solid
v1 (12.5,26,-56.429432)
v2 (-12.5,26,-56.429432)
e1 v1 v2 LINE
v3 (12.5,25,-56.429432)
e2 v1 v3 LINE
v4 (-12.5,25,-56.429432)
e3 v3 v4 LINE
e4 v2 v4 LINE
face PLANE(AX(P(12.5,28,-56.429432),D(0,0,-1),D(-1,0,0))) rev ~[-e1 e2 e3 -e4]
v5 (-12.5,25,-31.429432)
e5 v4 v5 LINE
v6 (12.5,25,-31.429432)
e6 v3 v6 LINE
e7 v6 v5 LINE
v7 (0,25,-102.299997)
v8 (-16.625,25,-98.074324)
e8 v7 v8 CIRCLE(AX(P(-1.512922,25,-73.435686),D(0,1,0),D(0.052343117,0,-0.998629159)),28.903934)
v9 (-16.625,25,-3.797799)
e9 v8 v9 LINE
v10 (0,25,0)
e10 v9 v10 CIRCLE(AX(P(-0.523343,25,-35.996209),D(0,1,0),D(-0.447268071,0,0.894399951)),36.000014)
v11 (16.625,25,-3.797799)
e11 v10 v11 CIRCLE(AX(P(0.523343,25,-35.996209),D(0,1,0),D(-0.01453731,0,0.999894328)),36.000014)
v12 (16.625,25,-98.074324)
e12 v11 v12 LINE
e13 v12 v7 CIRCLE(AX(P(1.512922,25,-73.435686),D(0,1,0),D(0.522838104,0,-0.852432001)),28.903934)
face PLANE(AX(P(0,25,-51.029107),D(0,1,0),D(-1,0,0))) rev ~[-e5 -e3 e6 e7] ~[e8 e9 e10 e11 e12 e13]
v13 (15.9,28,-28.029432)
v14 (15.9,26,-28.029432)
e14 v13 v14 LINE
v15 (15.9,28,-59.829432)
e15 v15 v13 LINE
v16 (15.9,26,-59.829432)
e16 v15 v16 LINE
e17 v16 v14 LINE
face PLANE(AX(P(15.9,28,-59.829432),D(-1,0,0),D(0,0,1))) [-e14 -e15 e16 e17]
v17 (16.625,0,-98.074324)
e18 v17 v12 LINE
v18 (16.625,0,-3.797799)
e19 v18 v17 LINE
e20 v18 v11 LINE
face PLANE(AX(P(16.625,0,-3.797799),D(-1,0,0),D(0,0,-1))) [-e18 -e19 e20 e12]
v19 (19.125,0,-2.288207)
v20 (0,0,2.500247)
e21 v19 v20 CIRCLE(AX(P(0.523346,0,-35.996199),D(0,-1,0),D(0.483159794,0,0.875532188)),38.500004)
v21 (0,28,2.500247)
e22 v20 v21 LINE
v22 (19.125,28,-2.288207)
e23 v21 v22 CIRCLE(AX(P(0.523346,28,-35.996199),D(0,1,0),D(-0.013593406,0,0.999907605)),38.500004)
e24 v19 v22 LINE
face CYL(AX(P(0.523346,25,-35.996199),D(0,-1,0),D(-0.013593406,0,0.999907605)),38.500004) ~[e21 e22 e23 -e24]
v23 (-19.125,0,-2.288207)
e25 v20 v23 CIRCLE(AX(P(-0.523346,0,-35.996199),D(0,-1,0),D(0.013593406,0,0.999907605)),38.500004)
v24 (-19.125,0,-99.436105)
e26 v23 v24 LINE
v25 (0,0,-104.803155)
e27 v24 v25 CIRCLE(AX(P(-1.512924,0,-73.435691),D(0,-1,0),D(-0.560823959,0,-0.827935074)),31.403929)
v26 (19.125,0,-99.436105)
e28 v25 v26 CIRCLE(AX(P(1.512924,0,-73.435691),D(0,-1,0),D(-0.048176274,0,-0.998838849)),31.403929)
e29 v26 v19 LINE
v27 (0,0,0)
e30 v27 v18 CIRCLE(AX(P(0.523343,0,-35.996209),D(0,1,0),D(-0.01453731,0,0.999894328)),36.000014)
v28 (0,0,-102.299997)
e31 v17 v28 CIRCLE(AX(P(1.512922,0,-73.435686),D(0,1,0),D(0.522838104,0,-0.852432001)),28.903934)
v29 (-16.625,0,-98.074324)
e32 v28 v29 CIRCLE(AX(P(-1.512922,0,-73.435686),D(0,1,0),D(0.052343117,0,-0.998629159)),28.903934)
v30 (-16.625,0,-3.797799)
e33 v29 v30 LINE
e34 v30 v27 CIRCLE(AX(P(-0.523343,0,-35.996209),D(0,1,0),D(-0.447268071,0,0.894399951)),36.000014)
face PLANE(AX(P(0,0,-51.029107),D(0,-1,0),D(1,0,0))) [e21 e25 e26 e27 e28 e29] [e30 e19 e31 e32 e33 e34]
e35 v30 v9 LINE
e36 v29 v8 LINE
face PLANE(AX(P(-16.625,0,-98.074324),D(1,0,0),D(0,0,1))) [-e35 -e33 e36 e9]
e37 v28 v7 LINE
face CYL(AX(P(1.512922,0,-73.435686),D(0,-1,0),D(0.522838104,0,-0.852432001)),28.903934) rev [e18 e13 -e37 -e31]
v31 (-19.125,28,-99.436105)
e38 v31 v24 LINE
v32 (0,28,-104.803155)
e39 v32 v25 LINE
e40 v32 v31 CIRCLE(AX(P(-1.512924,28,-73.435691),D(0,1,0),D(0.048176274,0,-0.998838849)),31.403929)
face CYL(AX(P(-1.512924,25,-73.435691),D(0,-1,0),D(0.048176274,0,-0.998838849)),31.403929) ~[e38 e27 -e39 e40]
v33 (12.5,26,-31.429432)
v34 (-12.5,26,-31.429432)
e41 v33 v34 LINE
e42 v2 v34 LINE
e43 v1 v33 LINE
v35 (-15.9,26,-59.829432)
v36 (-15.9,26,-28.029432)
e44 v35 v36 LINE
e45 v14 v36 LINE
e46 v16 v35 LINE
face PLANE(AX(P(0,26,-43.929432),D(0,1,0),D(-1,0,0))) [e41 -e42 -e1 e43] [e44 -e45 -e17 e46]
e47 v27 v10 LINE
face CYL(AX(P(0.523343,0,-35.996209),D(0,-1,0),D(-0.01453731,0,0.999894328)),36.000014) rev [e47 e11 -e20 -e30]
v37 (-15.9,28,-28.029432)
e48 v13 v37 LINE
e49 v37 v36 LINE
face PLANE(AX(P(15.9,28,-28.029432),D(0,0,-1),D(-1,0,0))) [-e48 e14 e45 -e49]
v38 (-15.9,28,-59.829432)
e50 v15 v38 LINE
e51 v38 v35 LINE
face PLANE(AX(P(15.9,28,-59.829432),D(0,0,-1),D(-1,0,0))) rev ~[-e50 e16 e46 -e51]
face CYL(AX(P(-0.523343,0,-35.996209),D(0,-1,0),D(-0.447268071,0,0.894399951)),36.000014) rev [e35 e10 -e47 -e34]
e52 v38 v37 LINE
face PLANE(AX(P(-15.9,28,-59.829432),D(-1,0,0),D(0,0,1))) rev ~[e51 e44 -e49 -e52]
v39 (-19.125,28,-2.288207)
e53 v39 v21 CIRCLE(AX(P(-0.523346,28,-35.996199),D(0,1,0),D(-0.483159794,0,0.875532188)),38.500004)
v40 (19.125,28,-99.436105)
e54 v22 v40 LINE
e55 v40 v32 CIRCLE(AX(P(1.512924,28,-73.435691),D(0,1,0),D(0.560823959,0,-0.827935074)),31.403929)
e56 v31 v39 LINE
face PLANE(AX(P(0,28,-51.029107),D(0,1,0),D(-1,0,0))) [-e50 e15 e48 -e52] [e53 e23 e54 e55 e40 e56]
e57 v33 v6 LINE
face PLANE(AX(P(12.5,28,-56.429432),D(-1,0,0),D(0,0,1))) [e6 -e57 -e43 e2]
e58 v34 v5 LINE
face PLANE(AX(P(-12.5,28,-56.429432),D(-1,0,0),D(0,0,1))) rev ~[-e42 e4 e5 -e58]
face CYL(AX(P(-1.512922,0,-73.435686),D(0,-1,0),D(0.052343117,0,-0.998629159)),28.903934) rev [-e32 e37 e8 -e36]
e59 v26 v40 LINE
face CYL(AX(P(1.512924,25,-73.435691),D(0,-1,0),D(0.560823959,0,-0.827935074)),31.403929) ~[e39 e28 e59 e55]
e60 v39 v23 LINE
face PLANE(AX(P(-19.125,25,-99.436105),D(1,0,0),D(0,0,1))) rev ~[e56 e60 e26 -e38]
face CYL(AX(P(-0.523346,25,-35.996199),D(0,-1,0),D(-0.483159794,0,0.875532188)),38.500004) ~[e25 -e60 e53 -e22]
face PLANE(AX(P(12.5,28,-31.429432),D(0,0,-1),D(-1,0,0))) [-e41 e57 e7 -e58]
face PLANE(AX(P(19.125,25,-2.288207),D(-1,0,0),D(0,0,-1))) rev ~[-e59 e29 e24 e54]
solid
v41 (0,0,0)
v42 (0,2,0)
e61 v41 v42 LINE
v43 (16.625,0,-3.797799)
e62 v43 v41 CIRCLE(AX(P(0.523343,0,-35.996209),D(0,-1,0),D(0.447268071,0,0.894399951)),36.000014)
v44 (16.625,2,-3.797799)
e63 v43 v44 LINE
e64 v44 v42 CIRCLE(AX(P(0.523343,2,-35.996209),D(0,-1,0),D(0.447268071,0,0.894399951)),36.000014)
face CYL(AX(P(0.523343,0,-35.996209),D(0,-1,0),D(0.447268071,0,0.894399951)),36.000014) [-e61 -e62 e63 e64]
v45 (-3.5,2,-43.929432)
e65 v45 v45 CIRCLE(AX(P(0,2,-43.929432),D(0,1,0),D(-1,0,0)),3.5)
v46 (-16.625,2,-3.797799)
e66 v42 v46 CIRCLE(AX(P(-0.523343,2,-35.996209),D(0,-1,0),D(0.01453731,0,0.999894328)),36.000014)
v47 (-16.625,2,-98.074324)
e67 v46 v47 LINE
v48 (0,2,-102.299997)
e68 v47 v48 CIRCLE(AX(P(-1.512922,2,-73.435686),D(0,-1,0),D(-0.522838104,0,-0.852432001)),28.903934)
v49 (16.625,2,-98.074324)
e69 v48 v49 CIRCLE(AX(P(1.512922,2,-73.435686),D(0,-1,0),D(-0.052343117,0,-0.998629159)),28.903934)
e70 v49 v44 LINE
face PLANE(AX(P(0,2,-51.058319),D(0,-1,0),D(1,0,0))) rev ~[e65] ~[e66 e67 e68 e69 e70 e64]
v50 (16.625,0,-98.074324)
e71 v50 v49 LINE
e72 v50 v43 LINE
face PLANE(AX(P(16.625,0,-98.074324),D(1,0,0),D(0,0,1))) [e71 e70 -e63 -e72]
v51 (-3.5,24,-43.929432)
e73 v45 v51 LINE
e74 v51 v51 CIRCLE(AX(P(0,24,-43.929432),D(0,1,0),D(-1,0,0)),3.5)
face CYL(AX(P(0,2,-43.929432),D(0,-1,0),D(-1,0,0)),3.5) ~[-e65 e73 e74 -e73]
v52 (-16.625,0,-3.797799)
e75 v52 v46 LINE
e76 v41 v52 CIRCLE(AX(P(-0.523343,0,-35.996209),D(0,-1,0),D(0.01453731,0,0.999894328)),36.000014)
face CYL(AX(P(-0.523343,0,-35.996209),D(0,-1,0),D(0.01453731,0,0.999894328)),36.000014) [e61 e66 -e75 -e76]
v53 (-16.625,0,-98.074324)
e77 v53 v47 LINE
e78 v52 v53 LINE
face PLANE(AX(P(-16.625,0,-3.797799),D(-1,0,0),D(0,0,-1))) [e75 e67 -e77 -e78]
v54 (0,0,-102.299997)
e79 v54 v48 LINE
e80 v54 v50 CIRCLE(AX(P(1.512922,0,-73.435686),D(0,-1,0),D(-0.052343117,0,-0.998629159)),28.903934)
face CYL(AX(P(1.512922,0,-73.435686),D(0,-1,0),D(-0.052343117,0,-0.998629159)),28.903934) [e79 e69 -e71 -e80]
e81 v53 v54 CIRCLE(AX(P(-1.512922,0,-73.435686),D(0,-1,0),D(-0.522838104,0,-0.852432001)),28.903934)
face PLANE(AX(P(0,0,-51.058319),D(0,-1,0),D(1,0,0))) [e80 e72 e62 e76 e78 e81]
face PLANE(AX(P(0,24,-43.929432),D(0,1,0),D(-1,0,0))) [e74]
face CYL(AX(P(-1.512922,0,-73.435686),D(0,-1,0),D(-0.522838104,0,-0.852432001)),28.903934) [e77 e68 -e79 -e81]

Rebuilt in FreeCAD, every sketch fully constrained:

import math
import FreeCAD as App
import Part
import Sketcher
from FreeCAD import Vector


def add_polygon(sketch, points):
    """Adds a closed chain of lines whose ends are joined by coincident constraints."""
    first, n = sketch.GeometryCount, len(points)
    for a, b in zip(points, points[1:] + points[:1]):
        sketch.addGeometry(Part.LineSegment(App.Vector(*a, 0), App.Vector(*b, 0)), False)
    for i in range(n):
        sketch.addConstraint(Sketcher.Constraint("Coincident", first + i, 2, first + (i + 1) % n, 1))

doc = App.newDocument("Part")
body = doc.addObject("PartDesign::Body", "Body")

sketch1 = body.newObject("Sketcher::SketchObject", "Sketch")
sketch1.AttachmentSupport = (doc.getObject("XZ_Plane"), [""])
sketch1.MapMode = "FlatFace"
sketch1.addGeometry([
    Part.LineSegment(Vector(17, -98, 0), Vector(17, -4, 0)),
    Part.ArcOfCircle(Part.Circle(Vector(1, -36, 0), Vector(0, 0, 1), 36), math.radians(63), math.radians(91)),
    Part.ArcOfCircle(Part.Circle(Vector(-1, -36, 0), Vector(0, 0, 1), 36), math.radians(89), math.radians(117)),
    Part.LineSegment(Vector(-17, -4, 0), Vector(-17, -98, 0)),
    Part.ArcOfCircle(Part.Circle(Vector(-2, -73, 0), Vector(0, 0, 1), 29), math.radians(-122), math.radians(-87)),
    Part.ArcOfCircle(Part.Circle(Vector(2, -73, 0), Vector(0, 0, 1), 29), math.radians(-93), math.radians(-58)),
], False)
sketch1.addConstraint([
    Sketcher.Constraint("Coincident", 0, 2, 1, 1),
    Sketcher.Constraint("Coincident", 1, 2, 2, 1),
    Sketcher.Constraint("Coincident", 2, 2, 3, 1),
    Sketcher.Constraint("Coincident", 3, 2, 4, 1),
    Sketcher.Constraint("Coincident", 4, 2, 5, 1),
    Sketcher.Constraint("Coincident", 5, 2, 0, 1),
    Sketcher.Constraint("Vertical", 0),
    Sketcher.Constraint("Vertical", 3),
    Sketcher.Constraint("Coincident", 1, 2, -1, 1),
    Sketcher.Constraint("Equal", 1, 2),
    Sketcher.Constraint("Equal", 4, 5),
    Sketcher.Constraint("Symmetric", 4, 3, 5, 3, -2),
    Sketcher.Constraint("Symmetric", 0, 2, 2, 2, -2),
    Sketcher.Constraint("DistanceX", 2, 2, 0, 2, 33.25),
    Sketcher.Constraint("Radius", 1, 36.000014),
    Sketcher.Constraint("Radius", 4, 28.903934),
    Sketcher.Constraint("DistanceY", 0, 2, -1, 1, 3.797799),
    Sketcher.Constraint("DistanceY", 0, 1, 0, 2, 94.276525),
    Sketcher.Constraint("DistanceX", 4, 3, -1, 1, 1.512922),
])
pad1 = body.newObject("PartDesign::Pad", "Pad")
pad1.Profile = sketch1
pad1.Length = 2
pad1.Reversed = True

sketch2 = body.newObject("Sketcher::SketchObject", "Sketch001")
sketch2.AttachmentSupport = (doc.getObject("XZ_Plane"), [""])
sketch2.MapMode = "FlatFace"
sketch2.AttachmentOffset = App.Placement(Vector(0, 0, -2), App.Rotation())
sketch2.addGeometry(Part.Circle(Vector(0, -43.9, 0), Vector(0, 0, 1), 3.5), False)
sketch2.addConstraint([
    Sketcher.Constraint("PointOnObject", 0, 3, -2),
    Sketcher.Constraint("Diameter", 0, 7.0),
    Sketcher.Constraint("DistanceY", 0, 3, -1, 1, 43.929432),
])
pad2 = body.newObject("PartDesign::Pad", "Pad001")
pad2.Profile = sketch2
pad2.Length = 22
pad2.Reversed = True
body2 = doc.addObject("PartDesign::Body", "Body001")

sketch3 = body2.newObject("Sketcher::SketchObject", "Sketch002")
sketch3.AttachmentSupport = (doc.getObject("XZ_Plane001"), [""])
sketch3.MapMode = "FlatFace"
sketch3.addGeometry([
    Part.ArcOfCircle(Part.Circle(Vector(2, -73, 0), Vector(0, 0, 1), 31), math.radians(-93), math.radians(-56)),
    Part.LineSegment(Vector(19, -99, 0), Vector(19, -2, 0)),
    Part.ArcOfCircle(Part.Circle(Vector(1, -36, 0), Vector(0, 0, 1), 39), math.radians(61), math.radians(91)),
    Part.ArcOfCircle(Part.Circle(Vector(-1, -36, 0), Vector(0, 0, 1), 39), math.radians(89), math.radians(119)),
    Part.LineSegment(Vector(-19, -2, 0), Vector(-19, -99, 0)),
    Part.ArcOfCircle(Part.Circle(Vector(-2, -73, 0), Vector(0, 0, 1), 31), math.radians(-124), math.radians(-87)),
    Part.LineSegment(Vector(17, -4, 0), Vector(17, -98, 0)),
    Part.ArcOfCircle(Part.Circle(Vector(2, -73, 0), Vector(0, 0, 1), 29), math.radians(-93), math.radians(-58)),
    Part.ArcOfCircle(Part.Circle(Vector(-2, -73, 0), Vector(0, 0, 1), 29), math.radians(-122), math.radians(-87)),
    Part.LineSegment(Vector(-17, -98, 0), Vector(-17, -4, 0)),
    Part.ArcOfCircle(Part.Circle(Vector(-1, -36, 0), Vector(0, 0, 1), 36), math.radians(89), math.radians(117)),
    Part.ArcOfCircle(Part.Circle(Vector(1, -36, 0), Vector(0, 0, 1), 36), math.radians(63), math.radians(91)),
], False)
sketch3.addConstraint([
    Sketcher.Constraint("Coincident", 0, 2, 1, 1),
    Sketcher.Constraint("Coincident", 1, 2, 2, 1),
    Sketcher.Constraint("Coincident", 2, 2, 3, 1),
    Sketcher.Constraint("Coincident", 3, 2, 4, 1),
    Sketcher.Constraint("Coincident", 4, 2, 5, 1),
    Sketcher.Constraint("Coincident", 5, 2, 0, 1),
    Sketcher.Constraint("Coincident", 6, 2, 7, 2),
    Sketcher.Constraint("Coincident", 7, 1, 8, 2),
    Sketcher.Constraint("Coincident", 8, 1, 9, 1),
    Sketcher.Constraint("Coincident", 9, 2, 10, 2),
    Sketcher.Constraint("Coincident", 10, 1, 11, 2),
    Sketcher.Constraint("Coincident", 11, 1, 6, 1),
    Sketcher.Constraint("Vertical", 1),
    Sketcher.Constraint("Vertical", 4),
    Sketcher.Constraint("Vertical", 6),
    Sketcher.Constraint("Vertical", 9),
    Sketcher.Constraint("Coincident", 10, 1, -1, 1),
    Sketcher.Constraint("Coincident", 7, 3, 0, 3),
    Sketcher.Constraint("Coincident", 8, 3, 5, 3),
    Sketcher.Constraint("Equal", 2, 3),
    Sketcher.Constraint("Equal", 0, 5),
    Sketcher.Constraint("Equal", 7, 8),
    Sketcher.Constraint("Equal", 10, 11),
    Sketcher.Constraint("Symmetric", 2, 3, 3, 3, -2),
    Sketcher.Constraint("Symmetric", 0, 3, 5, 3, -2),
    Sketcher.Constraint("Symmetric", 9, 2, 11, 1, -2),
    Sketcher.Constraint("Horizontal", 1, 2, 3, 2),
    Sketcher.Constraint("DistanceX", 6, 2, 0, 2, 2.5),
    Sketcher.Constraint("Radius", 0, 31.403929),
    Sketcher.Constraint("DistanceX", 3, 2, 1, 2, 38.25),
    Sketcher.Constraint("Radius", 2, 38.500004),
    Sketcher.Constraint("Radius", 7, 28.903934),
    Sketcher.Constraint("Radius", 10, 36.000014),
    Sketcher.Constraint("DistanceY", 2, 3, -1, 1, 35.996199),
    Sketcher.Constraint("DistanceY", 9, 2, -1, 1, 3.797799),
    Sketcher.Constraint("DistanceY", 1, 1, 1, 2, 97.147898),
    Sketcher.Constraint("DistanceY", 6, 2, 6, 1, 94.276525),
    Sketcher.Constraint("DistanceY", 0, 3, -1, 1, 73.435691),
])
pad3 = body2.newObject("PartDesign::Pad", "Pad002")
pad3.Profile = sketch3
pad3.Length = 25
pad3.Reversed = True

sketch4 = body2.newObject("Sketcher::SketchObject", "Sketch003")
sketch4.AttachmentSupport = (doc.getObject("XZ_Plane001"), [""])
sketch4.MapMode = "FlatFace"
sketch4.AttachmentOffset = App.Placement(Vector(0, 0, -25), App.Rotation())
sketch4.addGeometry([
    Part.ArcOfCircle(Part.Circle(Vector(-1, -36, 0), Vector(0, 0, 1), 39), math.radians(89), math.radians(119)),
    Part.ArcOfCircle(Part.Circle(Vector(1, -36, 0), Vector(0, 0, 1), 39), math.radians(61), math.radians(91)),
    Part.LineSegment(Vector(19, -2, 0), Vector(19, -99, 0)),
    Part.ArcOfCircle(Part.Circle(Vector(2, -73, 0), Vector(0, 0, 1), 31), math.radians(-93), math.radians(-56)),
    Part.ArcOfCircle(Part.Circle(Vector(-2, -73, 0), Vector(0, 0, 1), 31), math.radians(-124), math.radians(-87)),
    Part.LineSegment(Vector(-19, -99, 0), Vector(-19, -2, 0)),
], False)
sketch4.addConstraint([
    Sketcher.Constraint("Coincident", 0, 1, 1, 2),
    Sketcher.Constraint("Coincident", 1, 1, 2, 1),
    Sketcher.Constraint("Coincident", 2, 2, 3, 2),
    Sketcher.Constraint("Coincident", 3, 1, 4, 2),
    Sketcher.Constraint("Coincident", 4, 1, 5, 1),
    Sketcher.Constraint("Coincident", 5, 2, 0, 2),
    Sketcher.Constraint("Vertical", 2),
    Sketcher.Constraint("Vertical", 5),
    Sketcher.Constraint("Equal", 0, 1),
    Sketcher.Constraint("Equal", 3, 4),
    Sketcher.Constraint("Symmetric", 0, 3, 1, 3, -2),
    Sketcher.Constraint("Symmetric", 3, 3, 4, 3, -2),
    Sketcher.Constraint("Horizontal", 2, 2, 4, 1),
    Sketcher.Constraint("Radius", 3, 31.403929),
    Sketcher.Constraint("DistanceX", 4, 1, 2, 2, 38.25),
    Sketcher.Constraint("Radius", 0, 38.500004),
    Sketcher.Constraint("DistanceY", 0, 3, -1, 1, 35.996199),
    Sketcher.Constraint("DistanceY", 2, 2, 1, 1, 97.147898),
    Sketcher.Constraint("DistanceY", 3, 3, -1, 1, 73.435691),
    Sketcher.Constraint("DistanceX", 1, 3, 3, 3, 0.989578),
])
pad4 = body2.newObject("PartDesign::Pad", "Pad003")
pad4.Profile = sketch4
pad4.Length = 3
pad4.Reversed = True

sketch5 = body2.newObject("Sketcher::SketchObject", "Sketch004")
sketch5.AttachmentSupport = (doc.getObject("XZ_Plane001"), [""])
sketch5.MapMode = "FlatFace"
sketch5.AttachmentOffset = App.Placement(Vector(0, 0, -28), App.Rotation())
add_polygon(sketch5, [(12, -31), (12, -56), (-12, -56), (-12, -31)])
sketch5.addConstraint([
    Sketcher.Constraint("Vertical", 0),
    Sketcher.Constraint("Horizontal", 1),
    Sketcher.Constraint("Vertical", 2),
    Sketcher.Constraint("Horizontal", 3),
    Sketcher.Constraint("Equal", 3, 0),
    Sketcher.Constraint("DistanceX", 1, 2, 1, 1, 25.0),
    Sketcher.Constraint("DistanceX", -1, 1, 0, 2, 12.5),
    Sketcher.Constraint("DistanceY", 0, 2, -1, 1, 56.429432),
])
pocket1 = body2.newObject("PartDesign::Pocket", "Pocket")
pocket1.Profile = sketch5
pocket1.Length = 3
pocket1.Reversed = True

sketch6 = body2.newObject("Sketcher::SketchObject", "Sketch005")
sketch6.AttachmentSupport = (doc.getObject("XZ_Plane001"), [""])
sketch6.MapMode = "FlatFace"
sketch6.AttachmentOffset = App.Placement(Vector(0, 0, -28), App.Rotation())
add_polygon(sketch6, [(16, -28), (16, -60), (-16, -60), (-16, -28)])
add_polygon(sketch6, [(-12, -56), (12, -56), (12, -31), (-12, -31)])
sketch6.addConstraint([
    Sketcher.Constraint("Vertical", 0),
    Sketcher.Constraint("Horizontal", 1),
    Sketcher.Constraint("Vertical", 2),
    Sketcher.Constraint("Horizontal", 3),
    Sketcher.Constraint("Horizontal", 4),
    Sketcher.Constraint("Vertical", 5),
    Sketcher.Constraint("Horizontal", 6),
    Sketcher.Constraint("Vertical", 7),
    Sketcher.Constraint("Equal", 3, 0),
    Sketcher.Constraint("Equal", 6, 5),
    Sketcher.Constraint("DistanceX", 4, 1, 4, 2, 25.0),
    Sketcher.Constraint("DistanceX", 1, 2, 1, 1, 31.8),
    Sketcher.Constraint("DistanceX", -1, 1, 0, 2, 15.9),
    Sketcher.Constraint("DistanceX", -1, 1, 4, 2, 12.5),
    Sketcher.Constraint("DistanceY", 0, 2, 4, 2, 3.4),
    Sketcher.Constraint("DistanceY", 0, 2, -1, 1, 59.829432),
])
pocket2 = body2.newObject("PartDesign::Pocket", "Pocket001")
pocket2.Profile = sketch6
pocket2.Length = 2
pocket2.Reversed = True

doc.recompute()
